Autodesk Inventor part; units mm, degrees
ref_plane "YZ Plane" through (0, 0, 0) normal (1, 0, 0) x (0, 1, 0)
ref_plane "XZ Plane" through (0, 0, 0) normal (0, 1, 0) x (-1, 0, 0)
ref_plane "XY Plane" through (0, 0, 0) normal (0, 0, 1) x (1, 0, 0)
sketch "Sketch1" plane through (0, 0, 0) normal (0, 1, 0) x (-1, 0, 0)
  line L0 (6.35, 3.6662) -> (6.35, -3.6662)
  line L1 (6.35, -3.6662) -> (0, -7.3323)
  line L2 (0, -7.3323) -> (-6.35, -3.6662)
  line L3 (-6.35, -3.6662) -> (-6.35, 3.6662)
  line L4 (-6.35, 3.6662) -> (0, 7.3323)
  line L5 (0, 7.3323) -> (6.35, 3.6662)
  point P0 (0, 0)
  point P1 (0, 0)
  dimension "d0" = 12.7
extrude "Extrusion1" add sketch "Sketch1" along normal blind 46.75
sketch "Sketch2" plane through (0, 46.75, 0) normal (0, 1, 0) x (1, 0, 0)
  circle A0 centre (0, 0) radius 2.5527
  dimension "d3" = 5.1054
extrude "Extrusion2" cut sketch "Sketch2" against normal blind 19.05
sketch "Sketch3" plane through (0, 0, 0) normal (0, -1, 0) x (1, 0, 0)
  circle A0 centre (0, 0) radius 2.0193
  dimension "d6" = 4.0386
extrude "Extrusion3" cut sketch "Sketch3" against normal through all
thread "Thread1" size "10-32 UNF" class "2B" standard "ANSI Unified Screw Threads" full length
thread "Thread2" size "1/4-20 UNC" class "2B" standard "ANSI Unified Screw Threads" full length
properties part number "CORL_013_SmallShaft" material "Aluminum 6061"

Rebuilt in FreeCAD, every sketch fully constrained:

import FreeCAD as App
import Part
import Sketcher
Q = App.Units.Quantity

doc = App.newDocument("Part")
body = doc.addObject("PartDesign::Body", "Body")

sketch1 = body.newObject("Sketcher::SketchObject", "Sketch")
sketch1.AttachmentSupport = (doc.getObject("XZ_Plane"), [""])
sketch1.MapMode = "FlatFace"
sketch1.addGeometry([
    Part.LineSegment(App.Vector(-6, -4, 0), App.Vector(-6, 4, 0)),
    Part.LineSegment(App.Vector(-6, 4, 0), App.Vector(0, 7, 0)),
    Part.LineSegment(App.Vector(0, 7, 0), App.Vector(6, 4, 0)),
    Part.LineSegment(App.Vector(6, 4, 0), App.Vector(6, -4, 0)),
    Part.LineSegment(App.Vector(6, -4, 0), App.Vector(0, -7, 0)),
    Part.LineSegment(App.Vector(0, -7, 0), App.Vector(-6, -4, 0)),
], False)
sketch1.addConstraint([
    Sketcher.Constraint("Coincident", 0, 2, 1, 1),
    Sketcher.Constraint("Coincident", 1, 2, 2, 1),
    Sketcher.Constraint("Coincident", 2, 2, 3, 1),
    Sketcher.Constraint("Coincident", 3, 2, 4, 1),
    Sketcher.Constraint("Coincident", 4, 2, 5, 1),
    Sketcher.Constraint("Coincident", 5, 2, 0, 1),
    Sketcher.Constraint("Vertical", 0),
    Sketcher.Constraint("Vertical", 3),
    Sketcher.Constraint("Symmetric", 0, 2, 3, 2, -1, 1),
    Sketcher.Constraint("Symmetric", 1, 2, 4, 2, -1, 1),
    Sketcher.Constraint("PointOnObject", 1, 2, -2),
    Sketcher.Constraint("Parallel", 2, 5),
    Sketcher.Constraint("Horizontal", 0, 2, 2, 2),
    Sketcher.Constraint("DistanceX", 0, 2, 2, 2, Q("0.5 in")),
    Sketcher.Constraint("Angle", 1, Q("29.9995 deg")),
    Sketcher.Constraint("DistanceY", 3, 2, 1, 2, Q("0.433 in")),
])
pad1 = body.newObject("PartDesign::Pad", "Pad")
pad1.Profile = sketch1
pad1.Length = 46.75
pad1.Reversed = True

sketch2 = body.newObject("Sketcher::SketchObject", "Sketch001")
sketch2.AttachmentSupport = (doc.getObject("XZ_Plane"), [""])
sketch2.MapMode = "FlatFace"
sketch2.AttachmentOffset = App.Placement(App.Vector(0, 0, -46.75), App.Rotation())
sketch2.addGeometry(Part.Circle(App.Vector(0, 0, 0), App.Vector(0, 0, 1), 2.6), False)
sketch2.addConstraint([
    Sketcher.Constraint("Coincident", 0, 3, -1, 1),
    Sketcher.Constraint("Diameter", 0, Q("0.201 in")),
])
pocket1 = body.newObject("PartDesign::Pocket", "Pocket")
pocket1.Profile = sketch2
pocket1.Length = Q("0.75 in")
pocket1.Reversed = True

sketch3 = body.newObject("Sketcher::SketchObject", "Sketch002")
sketch3.AttachmentSupport = (doc.getObject("XZ_Plane"), [""])
sketch3.MapMode = "FlatFace"
sketch3.addGeometry(Part.Circle(App.Vector(0, 0, 0), App.Vector(0, 0, 1), 2), False)
sketch3.addConstraint([
    Sketcher.Constraint("Coincident", 0, 3, -1, 1),
    Sketcher.Constraint("Diameter", 0, Q("0.159 in")),
])
pocket2 = body.newObject("PartDesign::Pocket", "Pocket001")
pocket2.Profile = sketch3
pocket2.Type = "ThroughAll"

doc.recompute()
